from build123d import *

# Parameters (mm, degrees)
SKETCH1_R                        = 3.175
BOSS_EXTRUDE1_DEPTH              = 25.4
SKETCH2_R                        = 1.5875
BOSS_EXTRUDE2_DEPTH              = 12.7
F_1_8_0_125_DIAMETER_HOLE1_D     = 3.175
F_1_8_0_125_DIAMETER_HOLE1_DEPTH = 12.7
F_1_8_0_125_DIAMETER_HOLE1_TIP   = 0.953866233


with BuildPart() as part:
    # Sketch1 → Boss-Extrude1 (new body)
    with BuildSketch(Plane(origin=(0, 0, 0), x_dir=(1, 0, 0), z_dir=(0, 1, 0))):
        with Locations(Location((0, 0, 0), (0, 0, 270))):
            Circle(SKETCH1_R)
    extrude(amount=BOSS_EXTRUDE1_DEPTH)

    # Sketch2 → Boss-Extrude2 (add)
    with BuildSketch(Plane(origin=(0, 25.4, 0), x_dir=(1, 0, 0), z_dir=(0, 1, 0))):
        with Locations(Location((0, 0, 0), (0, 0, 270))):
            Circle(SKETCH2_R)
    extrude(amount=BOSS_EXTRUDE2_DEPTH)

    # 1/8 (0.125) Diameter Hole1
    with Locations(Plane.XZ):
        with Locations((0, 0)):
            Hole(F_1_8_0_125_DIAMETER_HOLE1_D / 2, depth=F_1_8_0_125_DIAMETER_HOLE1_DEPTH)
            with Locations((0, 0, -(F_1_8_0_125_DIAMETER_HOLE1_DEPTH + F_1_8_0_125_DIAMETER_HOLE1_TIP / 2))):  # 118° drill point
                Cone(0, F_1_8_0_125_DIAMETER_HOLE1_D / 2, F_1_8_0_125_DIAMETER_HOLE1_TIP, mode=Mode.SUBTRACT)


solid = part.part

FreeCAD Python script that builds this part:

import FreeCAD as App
import Part
import Sketcher
Q = App.Units.Quantity

doc = App.newDocument("Part")
params = doc.addObject("Spreadsheet::Sheet", "Params")
for row, (alias, value) in enumerate([
    ("sketch1_diameter", "0.25 in"),
    ("pad1_length", "1 in"),
    ("sketch2_diameter", "0.125 in"),
    ("pad2_length", "0.5 in"),
    ("sketch3_diameter", "0.125 in"),
    ("hole_diameter", "0.125 in"),
    ("hole_depth", "0.5 in"),
], start=1):
    params.set(f"A{row}", alias)
    params.set(f"B{row}", "=" + value)
    params.setAlias(f"B{row}", alias)

body = doc.addObject("PartDesign::Body", "Body")

# Sketch on XZ plane
sketch1 = body.newObject("Sketcher::SketchObject", "Sketch")
sketch1.AttachmentSupport = (doc.getObject("XZ_Plane"), [""])
sketch1.MapMode = "FlatFace"
sketch1.addGeometry(Part.Circle(App.Vector(0, 0, 0), App.Vector(0, 0, 1), 3.2), False)
sketch1.addConstraint(Sketcher.Constraint("Coincident", 0, 3, -1, 1))
sketch1.addConstraint(Sketcher.Constraint("Diameter", 0, Q("0.25 in")))
sketch1.setExpression("Constraints[1]", "Params.sketch1_diameter")
pad1 = body.newObject("PartDesign::Pad", "Pad")
pad1.Profile = sketch1
pad1.setExpression("Length", "Params.pad1_length")
pad1.Reversed = True

# Sketch on XZ plane
sketch2 = body.newObject("Sketcher::SketchObject", "Sketch001")
sketch2.AttachmentSupport = (doc.getObject("XZ_Plane"), [""])
sketch2.MapMode = "FlatFace"
sketch2.AttachmentOffset = App.Placement(App.Vector(0, 0, -1 * 25.4), App.Rotation())
sketch2.addGeometry(Part.Circle(App.Vector(0, 0, 0), App.Vector(0, 0, 1), 1.6), False)
sketch2.addConstraint(Sketcher.Constraint("Coincident", 0, 3, -1, 1))
sketch2.addConstraint(Sketcher.Constraint("Diameter", 0, Q("0.125 in")))
sketch2.setExpression("Constraints[1]", "Params.sketch2_diameter")
pad2 = body.newObject("PartDesign::Pad", "Pad001")
pad2.Profile = sketch2
pad2.setExpression("Length", "Params.pad2_length")
pad2.Reversed = True

# Sketch on XZ plane
sketch3 = body.newObject("Sketcher::SketchObject", "Sketch002")
sketch3.AttachmentSupport = (doc.getObject("XZ_Plane"), [""])
sketch3.MapMode = "FlatFace"
sketch3.addGeometry(Part.Circle(App.Vector(0, 0, 0), App.Vector(0, 0, 1), 1.6), False)
sketch3.addConstraint(Sketcher.Constraint("Coincident", 0, 3, -1, 1))
sketch3.addConstraint(Sketcher.Constraint("Diameter", 0, Q("0.125 in")))
sketch3.setExpression("Constraints[1]", "Params.sketch3_diameter")
doc.recompute()
hole = body.newObject("PartDesign::Hole", "Hole")
hole.Profile = sketch3
hole.ThreadType = "None"
hole.setExpression("Diameter", "Params.hole_diameter")
hole.DepthType = "Dimension"
hole.setExpression("Depth", "Params.hole_depth")
hole.DrillPoint = "Angled"
hole.DrillPointAngle = 118

doc.recompute()
